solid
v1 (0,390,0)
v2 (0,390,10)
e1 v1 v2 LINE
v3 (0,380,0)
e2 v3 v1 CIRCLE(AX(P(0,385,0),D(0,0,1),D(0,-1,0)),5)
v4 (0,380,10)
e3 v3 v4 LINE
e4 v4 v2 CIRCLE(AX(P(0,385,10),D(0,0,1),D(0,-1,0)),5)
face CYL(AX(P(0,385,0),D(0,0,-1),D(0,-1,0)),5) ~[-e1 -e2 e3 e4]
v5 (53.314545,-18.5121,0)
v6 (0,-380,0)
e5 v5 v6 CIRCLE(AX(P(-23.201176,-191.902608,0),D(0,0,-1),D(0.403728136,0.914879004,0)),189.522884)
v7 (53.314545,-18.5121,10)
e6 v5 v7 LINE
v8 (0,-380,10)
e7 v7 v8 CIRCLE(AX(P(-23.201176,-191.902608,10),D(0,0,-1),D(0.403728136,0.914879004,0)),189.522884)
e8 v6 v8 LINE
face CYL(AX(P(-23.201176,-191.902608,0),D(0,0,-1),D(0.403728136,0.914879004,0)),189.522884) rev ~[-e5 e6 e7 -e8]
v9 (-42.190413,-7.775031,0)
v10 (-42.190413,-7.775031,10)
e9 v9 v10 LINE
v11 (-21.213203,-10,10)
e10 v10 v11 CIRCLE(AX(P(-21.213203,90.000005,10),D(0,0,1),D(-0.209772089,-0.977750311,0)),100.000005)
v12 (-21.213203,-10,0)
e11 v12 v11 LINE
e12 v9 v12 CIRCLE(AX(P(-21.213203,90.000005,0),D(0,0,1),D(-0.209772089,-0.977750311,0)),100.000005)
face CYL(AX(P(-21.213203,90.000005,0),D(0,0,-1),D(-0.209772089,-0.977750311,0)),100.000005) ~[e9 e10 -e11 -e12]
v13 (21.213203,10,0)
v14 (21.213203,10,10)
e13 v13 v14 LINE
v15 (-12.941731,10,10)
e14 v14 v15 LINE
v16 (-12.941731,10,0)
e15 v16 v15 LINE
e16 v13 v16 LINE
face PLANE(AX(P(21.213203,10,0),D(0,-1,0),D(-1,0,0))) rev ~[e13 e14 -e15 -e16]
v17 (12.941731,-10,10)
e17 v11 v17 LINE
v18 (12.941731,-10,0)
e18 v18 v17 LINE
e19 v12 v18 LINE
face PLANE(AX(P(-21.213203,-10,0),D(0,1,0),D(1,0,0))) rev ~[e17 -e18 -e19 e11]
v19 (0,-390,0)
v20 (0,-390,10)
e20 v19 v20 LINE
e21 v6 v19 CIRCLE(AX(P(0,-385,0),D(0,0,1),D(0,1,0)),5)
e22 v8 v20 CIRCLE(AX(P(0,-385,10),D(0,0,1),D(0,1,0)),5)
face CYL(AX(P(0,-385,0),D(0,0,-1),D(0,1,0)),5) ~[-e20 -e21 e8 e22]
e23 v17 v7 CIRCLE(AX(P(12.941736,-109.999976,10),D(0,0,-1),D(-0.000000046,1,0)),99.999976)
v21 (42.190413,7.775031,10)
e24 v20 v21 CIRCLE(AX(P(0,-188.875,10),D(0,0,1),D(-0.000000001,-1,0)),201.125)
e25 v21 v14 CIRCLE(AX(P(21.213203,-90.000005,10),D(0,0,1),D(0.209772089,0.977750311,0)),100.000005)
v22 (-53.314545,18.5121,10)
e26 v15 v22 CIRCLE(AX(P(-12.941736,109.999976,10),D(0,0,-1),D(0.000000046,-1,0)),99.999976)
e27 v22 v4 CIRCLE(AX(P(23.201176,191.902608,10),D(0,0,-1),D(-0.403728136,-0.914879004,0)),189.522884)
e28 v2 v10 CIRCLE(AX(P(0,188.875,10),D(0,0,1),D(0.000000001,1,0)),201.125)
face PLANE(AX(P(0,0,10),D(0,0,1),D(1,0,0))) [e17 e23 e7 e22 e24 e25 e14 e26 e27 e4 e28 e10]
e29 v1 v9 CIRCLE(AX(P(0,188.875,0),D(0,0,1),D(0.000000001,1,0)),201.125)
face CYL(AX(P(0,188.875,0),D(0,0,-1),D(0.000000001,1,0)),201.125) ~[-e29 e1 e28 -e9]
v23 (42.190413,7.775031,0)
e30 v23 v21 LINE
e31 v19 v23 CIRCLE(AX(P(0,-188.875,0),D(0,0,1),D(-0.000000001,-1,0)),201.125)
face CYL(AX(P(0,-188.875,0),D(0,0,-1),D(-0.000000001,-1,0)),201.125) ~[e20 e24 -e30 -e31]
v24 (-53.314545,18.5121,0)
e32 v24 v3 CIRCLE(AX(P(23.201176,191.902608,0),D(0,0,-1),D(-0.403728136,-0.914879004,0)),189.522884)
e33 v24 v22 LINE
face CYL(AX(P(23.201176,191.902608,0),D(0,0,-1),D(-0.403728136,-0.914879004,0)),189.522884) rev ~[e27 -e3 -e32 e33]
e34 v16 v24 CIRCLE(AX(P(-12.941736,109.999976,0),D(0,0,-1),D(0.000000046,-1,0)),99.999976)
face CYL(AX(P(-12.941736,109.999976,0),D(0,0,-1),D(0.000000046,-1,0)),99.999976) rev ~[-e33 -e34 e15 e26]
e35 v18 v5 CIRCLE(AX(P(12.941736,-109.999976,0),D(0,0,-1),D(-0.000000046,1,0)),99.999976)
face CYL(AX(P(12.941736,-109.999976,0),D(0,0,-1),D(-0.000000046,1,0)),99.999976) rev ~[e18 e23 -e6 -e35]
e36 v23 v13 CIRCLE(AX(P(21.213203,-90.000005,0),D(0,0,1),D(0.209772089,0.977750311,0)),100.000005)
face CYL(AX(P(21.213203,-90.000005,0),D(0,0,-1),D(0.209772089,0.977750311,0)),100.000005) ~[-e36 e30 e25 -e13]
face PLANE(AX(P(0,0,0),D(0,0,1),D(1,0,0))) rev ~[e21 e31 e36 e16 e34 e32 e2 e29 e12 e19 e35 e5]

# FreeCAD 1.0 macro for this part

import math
import FreeCAD as App
import Part
import Sketcher
Q = App.Units.Quantity

doc = App.newDocument("Part")
body = doc.addObject("PartDesign::Body", "Body")

# Sketch on XY plane
sketch1 = body.newObject("Sketcher::SketchObject", "Sketch")
sketch1.AttachmentSupport = (doc.getObject("XY_Plane"), [""])
sketch1.MapMode = "FlatFace"
sketch1.addGeometry(Part.ArcOfCircle(Part.Circle(App.Vector(0, 385, 0), App.Vector(0, 0, 1), 5), math.radians(-90), math.radians(90)), False)
sketch1.addGeometry(Part.ArcOfCircle(Part.Circle(App.Vector(0, 188.875, 0), App.Vector(0, 0, 1), 201.125), math.radians(90), math.radians(257.891003)), False)
sketch1.addGeometry(Part.ArcOfCircle(Part.Circle(App.Vector(-21.213203, 90.000005, 0), App.Vector(0, 0, 1), 100.000005), math.radians(-102.108996), math.radians(-90)), False)
sketch1.addGeometry(Part.LineSegment(App.Vector(-21.213203, -10, 0), App.Vector(12.941731, -10, 0)), False)
sketch1.addGeometry(Part.ArcOfCircle(Part.Circle(App.Vector(12.941736, -109.999976, 0), App.Vector(0, 0, 1), 99.999976), math.radians(66.188546), math.radians(90.000003)), False)
sketch1.addGeometry(Part.ArcOfCircle(Part.Circle(App.Vector(-23.201176, -191.902608, 0), App.Vector(0, 0, 1), 189.522884), math.radians(-82.968277), math.radians(66.18855)), False)
sketch1.addGeometry(Part.ArcOfCircle(Part.Circle(App.Vector(0, -385, 0), App.Vector(0, 0, 1), 5), math.radians(90), math.radians(270)), False)
sketch1.addGeometry(Part.ArcOfCircle(Part.Circle(App.Vector(0, -188.875, 0), App.Vector(0, 0, 1), 201.125), math.radians(-90), math.radians(77.891003)), False)
sketch1.addGeometry(Part.ArcOfCircle(Part.Circle(App.Vector(21.213203, -90.000005, 0), App.Vector(0, 0, 1), 100.000005), math.radians(77.891004), math.radians(90)), False)
sketch1.addGeometry(Part.LineSegment(App.Vector(21.213203, 10, 0), App.Vector(-12.941731, 10, 0)), False)
sketch1.addGeometry(Part.ArcOfCircle(Part.Circle(App.Vector(-12.941736, 109.999976, 0), App.Vector(0, 0, 1), 99.999976), math.radians(-113.811454), math.radians(-89.999997)), False)
sketch1.addGeometry(Part.ArcOfCircle(Part.Circle(App.Vector(23.201176, 191.902608, 0), App.Vector(0, 0, 1), 189.522884), math.radians(97.031723), math.radians(246.18855)), False)
sketch1.addConstraint(Sketcher.Constraint("Tangent", 0, 2, 1, 1))
sketch1.addConstraint(Sketcher.Constraint("Tangent", 1, 2, 2, 1))
sketch1.addConstraint(Sketcher.Constraint("Tangent", 2, 2, 3, 1))
sketch1.addConstraint(Sketcher.Constraint("Tangent", 3, 2, 4, 2))
sketch1.addConstraint(Sketcher.Constraint("Tangent", 4, 1, 5, 2))
sketch1.addConstraint(Sketcher.Constraint("Coincident", 5, 1, 6, 1))
sketch1.addConstraint(Sketcher.Constraint("Tangent", 6, 2, 7, 1))
sketch1.addConstraint(Sketcher.Constraint("Tangent", 7, 2, 8, 1))
sketch1.addConstraint(Sketcher.Constraint("Tangent", 8, 2, 9, 1))
sketch1.addConstraint(Sketcher.Constraint("Tangent", 9, 2, 10, 2))
sketch1.addConstraint(Sketcher.Constraint("Tangent", 10, 1, 11, 2))
sketch1.addConstraint(Sketcher.Constraint("Coincident", 11, 1, 0, 1))
sketch1.addConstraint(Sketcher.Constraint("Horizontal", 3))
sketch1.addConstraint(Sketcher.Constraint("Horizontal", 9))
sketch1.addConstraint(Sketcher.Constraint("Equal", 0, 6))
sketch1.addConstraint(Sketcher.Constraint("Equal", 1, 7))
sketch1.addConstraint(Sketcher.Constraint("Equal", 2, 8))
sketch1.addConstraint(Sketcher.Constraint("Equal", 4, 10))
sketch1.addConstraint(Sketcher.Constraint("Equal", 5, 11))
sketch1.addConstraint(Sketcher.Constraint("Symmetric", 0, 3, 6, 3, -1, 1))
sketch1.addConstraint(Sketcher.Constraint("Symmetric", 2, 3, 8, 3, -1, 1))
sketch1.addConstraint(Sketcher.Constraint("Symmetric", 5, 3, 11, 3, -1, 1))
sketch1.addConstraint(Sketcher.Constraint("PointOnObject", 0, 3, -2))
sketch1.addConstraint(Sketcher.Constraint("PointOnObject", 1, 3, -2))
sketch1.addConstraint(Sketcher.Constraint("PointOnObject", 5, 1, -2))
sketch1.addConstraint(Sketcher.Constraint("Radius", 0, Q("5 mm")))
sketch1.addConstraint(Sketcher.Constraint("DistanceY", -1, 1, 0, 3, Q("385 mm")))
sketch1.addConstraint(Sketcher.Constraint("DistanceY", 2, 2, -1, 1, Q("10 mm")))
sketch1.addConstraint(Sketcher.Constraint("Radius", 1, Q("201.125 mm")))
sketch1.addConstraint(Sketcher.Constraint("Radius", 2, Q("100.000005 mm")))
sketch1.addConstraint(Sketcher.Constraint("Radius", 4, Q("99.999976 mm")))
sketch1.addConstraint(Sketcher.Constraint("Radius", 5, Q("189.522884 mm")))
sketch1.addConstraint(Sketcher.Constraint("DistanceX", 3, 1, 3, 2, Q("34.154934 mm")))
pad1 = body.newObject("PartDesign::Pad", "Pad")
pad1.Profile = sketch1
pad1.Length = 10

doc.recompute()
